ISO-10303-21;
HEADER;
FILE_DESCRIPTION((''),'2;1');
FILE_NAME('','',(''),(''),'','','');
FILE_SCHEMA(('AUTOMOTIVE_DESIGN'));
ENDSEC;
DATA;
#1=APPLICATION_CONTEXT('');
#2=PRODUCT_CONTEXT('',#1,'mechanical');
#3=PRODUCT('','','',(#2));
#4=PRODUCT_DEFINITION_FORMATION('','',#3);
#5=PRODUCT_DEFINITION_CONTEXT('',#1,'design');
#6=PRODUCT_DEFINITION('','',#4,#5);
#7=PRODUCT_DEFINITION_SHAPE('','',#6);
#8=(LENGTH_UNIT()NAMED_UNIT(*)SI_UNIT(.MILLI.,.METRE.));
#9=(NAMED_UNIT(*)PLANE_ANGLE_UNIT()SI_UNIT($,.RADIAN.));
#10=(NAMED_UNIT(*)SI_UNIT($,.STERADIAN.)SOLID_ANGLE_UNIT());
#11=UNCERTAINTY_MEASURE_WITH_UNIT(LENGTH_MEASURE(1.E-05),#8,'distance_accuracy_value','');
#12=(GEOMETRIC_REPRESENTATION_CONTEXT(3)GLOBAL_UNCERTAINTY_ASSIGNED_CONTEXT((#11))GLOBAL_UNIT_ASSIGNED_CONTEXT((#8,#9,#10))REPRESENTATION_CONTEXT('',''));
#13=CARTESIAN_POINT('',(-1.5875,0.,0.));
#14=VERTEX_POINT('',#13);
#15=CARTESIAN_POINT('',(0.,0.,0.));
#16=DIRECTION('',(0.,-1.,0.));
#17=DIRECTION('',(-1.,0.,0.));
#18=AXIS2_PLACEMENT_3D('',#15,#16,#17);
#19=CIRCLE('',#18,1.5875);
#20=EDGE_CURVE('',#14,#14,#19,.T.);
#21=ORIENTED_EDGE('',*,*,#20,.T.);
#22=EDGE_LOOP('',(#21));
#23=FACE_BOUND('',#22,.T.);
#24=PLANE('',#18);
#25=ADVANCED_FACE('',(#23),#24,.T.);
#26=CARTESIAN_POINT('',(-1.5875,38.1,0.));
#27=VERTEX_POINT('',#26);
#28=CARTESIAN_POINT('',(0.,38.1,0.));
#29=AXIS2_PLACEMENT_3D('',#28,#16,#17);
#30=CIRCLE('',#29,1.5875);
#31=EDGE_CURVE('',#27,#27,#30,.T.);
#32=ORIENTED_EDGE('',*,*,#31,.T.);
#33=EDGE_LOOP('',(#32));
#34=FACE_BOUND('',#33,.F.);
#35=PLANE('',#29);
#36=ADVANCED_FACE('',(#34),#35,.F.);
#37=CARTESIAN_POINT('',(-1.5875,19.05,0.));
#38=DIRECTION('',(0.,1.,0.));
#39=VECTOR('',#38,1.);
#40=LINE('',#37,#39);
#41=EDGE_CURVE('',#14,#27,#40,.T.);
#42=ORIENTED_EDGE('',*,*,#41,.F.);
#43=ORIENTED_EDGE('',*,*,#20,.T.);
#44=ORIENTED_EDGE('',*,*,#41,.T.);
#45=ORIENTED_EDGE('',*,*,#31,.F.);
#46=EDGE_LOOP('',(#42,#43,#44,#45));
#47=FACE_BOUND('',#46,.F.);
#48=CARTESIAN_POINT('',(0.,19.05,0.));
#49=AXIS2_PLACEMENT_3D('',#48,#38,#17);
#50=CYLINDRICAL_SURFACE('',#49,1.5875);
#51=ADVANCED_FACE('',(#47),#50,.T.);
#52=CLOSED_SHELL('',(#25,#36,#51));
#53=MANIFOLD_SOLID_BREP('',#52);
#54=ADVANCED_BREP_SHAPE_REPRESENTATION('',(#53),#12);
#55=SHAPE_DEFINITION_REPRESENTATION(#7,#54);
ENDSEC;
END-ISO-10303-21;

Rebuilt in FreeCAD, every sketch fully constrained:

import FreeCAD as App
import Part
import Sketcher
Q = App.Units.Quantity


def add_polygon(sketch, points):
    """Adds a closed chain of lines whose ends are joined by coincident constraints."""
    first, n = sketch.GeometryCount, len(points)
    for a, b in zip(points, points[1:] + points[:1]):
        sketch.addGeometry(Part.LineSegment(App.Vector(*a, 0), App.Vector(*b, 0)), False)
    for i in range(n):
        sketch.addConstraint(Sketcher.Constraint("Coincident", first + i, 2, first + (i + 1) % n, 1))

doc = App.newDocument("Part")
body = doc.addObject("PartDesign::Body", "Body")

# Sketch on XY plane
sketch1 = body.newObject("Sketcher::SketchObject", "Sketch")
sketch1.AttachmentSupport = (doc.getObject("XY_Plane"), [""])
sketch1.MapMode = "FlatFace"
add_polygon(sketch1, [(-1.5875, 38.1), (-1.5875, 0), (0, 0), (0, 38.1)])  # lines 0-3
sketch1.addConstraint([
    Sketcher.Constraint("Vertical", 0),
    Sketcher.Constraint("Horizontal", 1),
    Sketcher.Constraint("Vertical", 2),
    Sketcher.Constraint("Horizontal", 3),
    Sketcher.Constraint("Coincident", 1, 2, -1, 1),
    Sketcher.Constraint("DistanceY", 0, 2, 0, 1, Q("1.5 in")),
    Sketcher.Constraint("DistanceX", 1, 1, 1, 2, Q("0.0625 in")),
])
revolution = body.newObject("PartDesign::Revolution", "Revolution")
revolution.Profile = sketch1
revolution.ReferenceAxis = (sketch1, ["V_Axis"])
revolution.Angle = 360

doc.recompute()
